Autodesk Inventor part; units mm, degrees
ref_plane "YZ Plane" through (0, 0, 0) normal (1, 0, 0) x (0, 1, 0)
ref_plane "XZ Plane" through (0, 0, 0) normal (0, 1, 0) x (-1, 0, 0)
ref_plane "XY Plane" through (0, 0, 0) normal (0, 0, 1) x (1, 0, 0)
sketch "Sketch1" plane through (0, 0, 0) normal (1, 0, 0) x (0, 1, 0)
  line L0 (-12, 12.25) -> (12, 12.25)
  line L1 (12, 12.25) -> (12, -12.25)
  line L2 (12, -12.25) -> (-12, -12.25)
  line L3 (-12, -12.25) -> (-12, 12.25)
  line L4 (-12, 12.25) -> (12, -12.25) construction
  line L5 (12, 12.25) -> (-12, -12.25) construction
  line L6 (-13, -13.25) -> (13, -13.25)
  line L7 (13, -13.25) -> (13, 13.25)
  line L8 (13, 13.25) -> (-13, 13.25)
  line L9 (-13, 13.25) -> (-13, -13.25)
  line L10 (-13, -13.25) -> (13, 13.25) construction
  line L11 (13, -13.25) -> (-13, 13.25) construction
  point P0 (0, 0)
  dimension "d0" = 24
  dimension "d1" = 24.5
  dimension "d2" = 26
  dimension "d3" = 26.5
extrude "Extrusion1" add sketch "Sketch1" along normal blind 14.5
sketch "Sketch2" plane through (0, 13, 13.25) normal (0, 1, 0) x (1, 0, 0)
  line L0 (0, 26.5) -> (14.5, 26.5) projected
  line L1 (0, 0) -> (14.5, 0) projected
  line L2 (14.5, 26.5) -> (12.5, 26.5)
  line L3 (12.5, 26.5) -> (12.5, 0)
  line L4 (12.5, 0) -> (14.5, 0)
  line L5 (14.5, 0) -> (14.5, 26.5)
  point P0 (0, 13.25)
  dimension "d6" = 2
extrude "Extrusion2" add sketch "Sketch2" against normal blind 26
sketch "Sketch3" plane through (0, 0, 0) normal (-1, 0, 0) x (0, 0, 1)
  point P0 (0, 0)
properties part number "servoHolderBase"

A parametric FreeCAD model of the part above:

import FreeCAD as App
import Part
import Sketcher

V = App.Vector


def add_polygon(sketch, points):
    """Adds a closed chain of lines whose ends are joined by coincident constraints."""
    first, n = sketch.GeometryCount, len(points)
    for a, b in zip(points, points[1:] + points[:1]):
        sketch.addGeometry(Part.LineSegment(App.Vector(*a, 0), App.Vector(*b, 0)), False)
    for i in range(n):
        sketch.addConstraint(Sketcher.Constraint("Coincident", first + i, 2, first + (i + 1) % n, 1))

doc = App.newDocument("Part")
body = doc.addObject("PartDesign::Body", "Body")

# Sketch on YZ plane
sketch1 = doc.addObject("Sketcher::SketchObject", "Sketch")
body.addObject(sketch1)
sketch1.AttachmentSupport = (doc.YZ_Plane, [""])
sketch1.MapMode = "FlatFace"
add_polygon(sketch1, [(-13, 13), (-13, -13), (13, -13), (13, 13)])  # lines 0-3
add_polygon(sketch1, [(-12, -12), (-12, 12), (12, 12), (12, -12)])  # lines 4-7
sketch1.addConstraint(Sketcher.Constraint("Vertical", 0))
sketch1.addConstraint(Sketcher.Constraint("Horizontal", 1))
sketch1.addConstraint(Sketcher.Constraint("Vertical", 2))
sketch1.addConstraint(Sketcher.Constraint("Horizontal", 3))
sketch1.addConstraint(Sketcher.Constraint("Vertical", 4))
sketch1.addConstraint(Sketcher.Constraint("Horizontal", 5))
sketch1.addConstraint(Sketcher.Constraint("Vertical", 6))
sketch1.addConstraint(Sketcher.Constraint("Horizontal", 7))
sketch1.addConstraint(Sketcher.Constraint("Symmetric", 0, 2, 2, 2, -1, 1))
sketch1.addConstraint(Sketcher.Constraint("Symmetric", 4, 2, 6, 2, -1, 1))
sketch1.addConstraint(Sketcher.Constraint("DistanceX", 1, 1, 1, 2, 26.0))
sketch1.addConstraint(Sketcher.Constraint("DistanceX", 5, 1, 5, 2, 24.0))
sketch1.addConstraint(Sketcher.Constraint("DistanceY", 0, 2, 0, 1, 26.5))
sketch1.addConstraint(Sketcher.Constraint("DistanceY", 4, 1, 4, 2, 24.5))
pad1 = doc.addObject("PartDesign::Pad", "Pad")
body.addObject(pad1)
pad1.Profile = sketch1
pad1.Length = 14.5

# Sketch on XZ plane
sketch2 = doc.addObject("Sketcher::SketchObject", "Sketch001")
body.addObject(sketch2)
sketch2.AttachmentSupport = (doc.XZ_Plane, [""])
sketch2.MapMode = "FlatFace"
sketch2.AttachmentOffset = App.Placement(V(0, 0, -13), App.Rotation())
add_polygon(sketch2, [(14.5, -13.2), (12.5, -13.2), (12.5, 13.2), (14.5, 13.2)])  # lines 0-3
sketch2.addConstraint(Sketcher.Constraint("Horizontal", 0))
sketch2.addConstraint(Sketcher.Constraint("Vertical", 1))
sketch2.addConstraint(Sketcher.Constraint("Horizontal", 2))
sketch2.addConstraint(Sketcher.Constraint("Vertical", 3))
sketch2.addConstraint(Sketcher.Constraint("DistanceX", 0, 2, 0, 1, 2.0))
sketch2.addConstraint(Sketcher.Constraint("DistanceY", 1, 1, 1, 2, 26.5))
sketch2.addConstraint(Sketcher.Constraint("DistanceX", -1, 1, 0, 2, 12.5))
sketch2.addConstraint(Sketcher.Constraint("DistanceY", 0, 2, -1, 1, 13.25))
pad2 = doc.addObject("PartDesign::Pad", "Pad001")
body.addObject(pad2)
pad2.Profile = sketch2
pad2.Length = 26

doc.recompute()
